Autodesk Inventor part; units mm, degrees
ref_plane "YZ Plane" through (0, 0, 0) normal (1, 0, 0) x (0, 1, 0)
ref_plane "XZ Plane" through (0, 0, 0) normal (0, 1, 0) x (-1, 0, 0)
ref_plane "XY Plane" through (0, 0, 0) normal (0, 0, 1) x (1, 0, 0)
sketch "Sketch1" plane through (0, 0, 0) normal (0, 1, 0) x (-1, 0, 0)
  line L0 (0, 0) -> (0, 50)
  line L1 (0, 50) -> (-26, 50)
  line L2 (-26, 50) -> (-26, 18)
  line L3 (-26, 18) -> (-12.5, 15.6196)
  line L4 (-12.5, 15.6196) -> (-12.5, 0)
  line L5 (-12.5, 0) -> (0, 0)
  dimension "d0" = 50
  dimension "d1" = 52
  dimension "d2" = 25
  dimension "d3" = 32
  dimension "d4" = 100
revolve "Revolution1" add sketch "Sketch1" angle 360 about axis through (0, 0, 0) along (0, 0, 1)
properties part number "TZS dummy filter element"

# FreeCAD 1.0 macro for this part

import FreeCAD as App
import Part
import Sketcher

V = App.Vector
Q = App.Units.Quantity


def add_polygon(sketch, points):
    """Adds a closed chain of lines whose ends are joined by coincident constraints."""
    first, n = sketch.GeometryCount, len(points)
    for a, b in zip(points, points[1:] + points[:1]):
        sketch.addGeometry(Part.LineSegment(App.Vector(*a, 0), App.Vector(*b, 0)), False)
    for i in range(n):
        sketch.addConstraint(Sketcher.Constraint("Coincident", first + i, 2, first + (i + 1) % n, 1))

doc = App.newDocument("Part")
body = doc.addObject("PartDesign::Body", "Body")

# Sketch on XZ plane
sketch1 = doc.addObject("Sketcher::SketchObject", "Sketch")
body.addObject(sketch1)
sketch1.AttachmentSupport = (doc.XZ_Plane, [""])
sketch1.MapMode = "FlatFace"
add_polygon(sketch1, [(12, 0), (0, 0), (0, 50), (26, 50), (26, 18), (12, 16)])  # lines 0-5
sketch1.addConstraint([
    Sketcher.Constraint("Horizontal", 0),
    Sketcher.Constraint("Vertical", 1),
    Sketcher.Constraint("Horizontal", 2),
    Sketcher.Constraint("Vertical", 3),
    Sketcher.Constraint("Vertical", 5),
    Sketcher.Constraint("Coincident", 0, 2, -1, 1),
    Sketcher.Constraint("DistanceY", 1, 1, 1, 2, 50.0),
    Sketcher.Constraint("DistanceY", 3, 2, 3, 1, 32.0),
    Sketcher.Constraint("DistanceX", 2, 1, 2, 2, 26.0),
    Sketcher.Constraint("Angle", 4, Q("-170 deg")),
    Sketcher.Constraint("DistanceX", 0, 2, 0, 1, 12.5),
])
revolution = doc.addObject("PartDesign::Revolution", "Revolution")
body.addObject(revolution)
revolution.Profile = sketch1
revolution.ReferenceAxis = (sketch1, ["V_Axis"])
revolution.Angle = 360

doc.recompute()
